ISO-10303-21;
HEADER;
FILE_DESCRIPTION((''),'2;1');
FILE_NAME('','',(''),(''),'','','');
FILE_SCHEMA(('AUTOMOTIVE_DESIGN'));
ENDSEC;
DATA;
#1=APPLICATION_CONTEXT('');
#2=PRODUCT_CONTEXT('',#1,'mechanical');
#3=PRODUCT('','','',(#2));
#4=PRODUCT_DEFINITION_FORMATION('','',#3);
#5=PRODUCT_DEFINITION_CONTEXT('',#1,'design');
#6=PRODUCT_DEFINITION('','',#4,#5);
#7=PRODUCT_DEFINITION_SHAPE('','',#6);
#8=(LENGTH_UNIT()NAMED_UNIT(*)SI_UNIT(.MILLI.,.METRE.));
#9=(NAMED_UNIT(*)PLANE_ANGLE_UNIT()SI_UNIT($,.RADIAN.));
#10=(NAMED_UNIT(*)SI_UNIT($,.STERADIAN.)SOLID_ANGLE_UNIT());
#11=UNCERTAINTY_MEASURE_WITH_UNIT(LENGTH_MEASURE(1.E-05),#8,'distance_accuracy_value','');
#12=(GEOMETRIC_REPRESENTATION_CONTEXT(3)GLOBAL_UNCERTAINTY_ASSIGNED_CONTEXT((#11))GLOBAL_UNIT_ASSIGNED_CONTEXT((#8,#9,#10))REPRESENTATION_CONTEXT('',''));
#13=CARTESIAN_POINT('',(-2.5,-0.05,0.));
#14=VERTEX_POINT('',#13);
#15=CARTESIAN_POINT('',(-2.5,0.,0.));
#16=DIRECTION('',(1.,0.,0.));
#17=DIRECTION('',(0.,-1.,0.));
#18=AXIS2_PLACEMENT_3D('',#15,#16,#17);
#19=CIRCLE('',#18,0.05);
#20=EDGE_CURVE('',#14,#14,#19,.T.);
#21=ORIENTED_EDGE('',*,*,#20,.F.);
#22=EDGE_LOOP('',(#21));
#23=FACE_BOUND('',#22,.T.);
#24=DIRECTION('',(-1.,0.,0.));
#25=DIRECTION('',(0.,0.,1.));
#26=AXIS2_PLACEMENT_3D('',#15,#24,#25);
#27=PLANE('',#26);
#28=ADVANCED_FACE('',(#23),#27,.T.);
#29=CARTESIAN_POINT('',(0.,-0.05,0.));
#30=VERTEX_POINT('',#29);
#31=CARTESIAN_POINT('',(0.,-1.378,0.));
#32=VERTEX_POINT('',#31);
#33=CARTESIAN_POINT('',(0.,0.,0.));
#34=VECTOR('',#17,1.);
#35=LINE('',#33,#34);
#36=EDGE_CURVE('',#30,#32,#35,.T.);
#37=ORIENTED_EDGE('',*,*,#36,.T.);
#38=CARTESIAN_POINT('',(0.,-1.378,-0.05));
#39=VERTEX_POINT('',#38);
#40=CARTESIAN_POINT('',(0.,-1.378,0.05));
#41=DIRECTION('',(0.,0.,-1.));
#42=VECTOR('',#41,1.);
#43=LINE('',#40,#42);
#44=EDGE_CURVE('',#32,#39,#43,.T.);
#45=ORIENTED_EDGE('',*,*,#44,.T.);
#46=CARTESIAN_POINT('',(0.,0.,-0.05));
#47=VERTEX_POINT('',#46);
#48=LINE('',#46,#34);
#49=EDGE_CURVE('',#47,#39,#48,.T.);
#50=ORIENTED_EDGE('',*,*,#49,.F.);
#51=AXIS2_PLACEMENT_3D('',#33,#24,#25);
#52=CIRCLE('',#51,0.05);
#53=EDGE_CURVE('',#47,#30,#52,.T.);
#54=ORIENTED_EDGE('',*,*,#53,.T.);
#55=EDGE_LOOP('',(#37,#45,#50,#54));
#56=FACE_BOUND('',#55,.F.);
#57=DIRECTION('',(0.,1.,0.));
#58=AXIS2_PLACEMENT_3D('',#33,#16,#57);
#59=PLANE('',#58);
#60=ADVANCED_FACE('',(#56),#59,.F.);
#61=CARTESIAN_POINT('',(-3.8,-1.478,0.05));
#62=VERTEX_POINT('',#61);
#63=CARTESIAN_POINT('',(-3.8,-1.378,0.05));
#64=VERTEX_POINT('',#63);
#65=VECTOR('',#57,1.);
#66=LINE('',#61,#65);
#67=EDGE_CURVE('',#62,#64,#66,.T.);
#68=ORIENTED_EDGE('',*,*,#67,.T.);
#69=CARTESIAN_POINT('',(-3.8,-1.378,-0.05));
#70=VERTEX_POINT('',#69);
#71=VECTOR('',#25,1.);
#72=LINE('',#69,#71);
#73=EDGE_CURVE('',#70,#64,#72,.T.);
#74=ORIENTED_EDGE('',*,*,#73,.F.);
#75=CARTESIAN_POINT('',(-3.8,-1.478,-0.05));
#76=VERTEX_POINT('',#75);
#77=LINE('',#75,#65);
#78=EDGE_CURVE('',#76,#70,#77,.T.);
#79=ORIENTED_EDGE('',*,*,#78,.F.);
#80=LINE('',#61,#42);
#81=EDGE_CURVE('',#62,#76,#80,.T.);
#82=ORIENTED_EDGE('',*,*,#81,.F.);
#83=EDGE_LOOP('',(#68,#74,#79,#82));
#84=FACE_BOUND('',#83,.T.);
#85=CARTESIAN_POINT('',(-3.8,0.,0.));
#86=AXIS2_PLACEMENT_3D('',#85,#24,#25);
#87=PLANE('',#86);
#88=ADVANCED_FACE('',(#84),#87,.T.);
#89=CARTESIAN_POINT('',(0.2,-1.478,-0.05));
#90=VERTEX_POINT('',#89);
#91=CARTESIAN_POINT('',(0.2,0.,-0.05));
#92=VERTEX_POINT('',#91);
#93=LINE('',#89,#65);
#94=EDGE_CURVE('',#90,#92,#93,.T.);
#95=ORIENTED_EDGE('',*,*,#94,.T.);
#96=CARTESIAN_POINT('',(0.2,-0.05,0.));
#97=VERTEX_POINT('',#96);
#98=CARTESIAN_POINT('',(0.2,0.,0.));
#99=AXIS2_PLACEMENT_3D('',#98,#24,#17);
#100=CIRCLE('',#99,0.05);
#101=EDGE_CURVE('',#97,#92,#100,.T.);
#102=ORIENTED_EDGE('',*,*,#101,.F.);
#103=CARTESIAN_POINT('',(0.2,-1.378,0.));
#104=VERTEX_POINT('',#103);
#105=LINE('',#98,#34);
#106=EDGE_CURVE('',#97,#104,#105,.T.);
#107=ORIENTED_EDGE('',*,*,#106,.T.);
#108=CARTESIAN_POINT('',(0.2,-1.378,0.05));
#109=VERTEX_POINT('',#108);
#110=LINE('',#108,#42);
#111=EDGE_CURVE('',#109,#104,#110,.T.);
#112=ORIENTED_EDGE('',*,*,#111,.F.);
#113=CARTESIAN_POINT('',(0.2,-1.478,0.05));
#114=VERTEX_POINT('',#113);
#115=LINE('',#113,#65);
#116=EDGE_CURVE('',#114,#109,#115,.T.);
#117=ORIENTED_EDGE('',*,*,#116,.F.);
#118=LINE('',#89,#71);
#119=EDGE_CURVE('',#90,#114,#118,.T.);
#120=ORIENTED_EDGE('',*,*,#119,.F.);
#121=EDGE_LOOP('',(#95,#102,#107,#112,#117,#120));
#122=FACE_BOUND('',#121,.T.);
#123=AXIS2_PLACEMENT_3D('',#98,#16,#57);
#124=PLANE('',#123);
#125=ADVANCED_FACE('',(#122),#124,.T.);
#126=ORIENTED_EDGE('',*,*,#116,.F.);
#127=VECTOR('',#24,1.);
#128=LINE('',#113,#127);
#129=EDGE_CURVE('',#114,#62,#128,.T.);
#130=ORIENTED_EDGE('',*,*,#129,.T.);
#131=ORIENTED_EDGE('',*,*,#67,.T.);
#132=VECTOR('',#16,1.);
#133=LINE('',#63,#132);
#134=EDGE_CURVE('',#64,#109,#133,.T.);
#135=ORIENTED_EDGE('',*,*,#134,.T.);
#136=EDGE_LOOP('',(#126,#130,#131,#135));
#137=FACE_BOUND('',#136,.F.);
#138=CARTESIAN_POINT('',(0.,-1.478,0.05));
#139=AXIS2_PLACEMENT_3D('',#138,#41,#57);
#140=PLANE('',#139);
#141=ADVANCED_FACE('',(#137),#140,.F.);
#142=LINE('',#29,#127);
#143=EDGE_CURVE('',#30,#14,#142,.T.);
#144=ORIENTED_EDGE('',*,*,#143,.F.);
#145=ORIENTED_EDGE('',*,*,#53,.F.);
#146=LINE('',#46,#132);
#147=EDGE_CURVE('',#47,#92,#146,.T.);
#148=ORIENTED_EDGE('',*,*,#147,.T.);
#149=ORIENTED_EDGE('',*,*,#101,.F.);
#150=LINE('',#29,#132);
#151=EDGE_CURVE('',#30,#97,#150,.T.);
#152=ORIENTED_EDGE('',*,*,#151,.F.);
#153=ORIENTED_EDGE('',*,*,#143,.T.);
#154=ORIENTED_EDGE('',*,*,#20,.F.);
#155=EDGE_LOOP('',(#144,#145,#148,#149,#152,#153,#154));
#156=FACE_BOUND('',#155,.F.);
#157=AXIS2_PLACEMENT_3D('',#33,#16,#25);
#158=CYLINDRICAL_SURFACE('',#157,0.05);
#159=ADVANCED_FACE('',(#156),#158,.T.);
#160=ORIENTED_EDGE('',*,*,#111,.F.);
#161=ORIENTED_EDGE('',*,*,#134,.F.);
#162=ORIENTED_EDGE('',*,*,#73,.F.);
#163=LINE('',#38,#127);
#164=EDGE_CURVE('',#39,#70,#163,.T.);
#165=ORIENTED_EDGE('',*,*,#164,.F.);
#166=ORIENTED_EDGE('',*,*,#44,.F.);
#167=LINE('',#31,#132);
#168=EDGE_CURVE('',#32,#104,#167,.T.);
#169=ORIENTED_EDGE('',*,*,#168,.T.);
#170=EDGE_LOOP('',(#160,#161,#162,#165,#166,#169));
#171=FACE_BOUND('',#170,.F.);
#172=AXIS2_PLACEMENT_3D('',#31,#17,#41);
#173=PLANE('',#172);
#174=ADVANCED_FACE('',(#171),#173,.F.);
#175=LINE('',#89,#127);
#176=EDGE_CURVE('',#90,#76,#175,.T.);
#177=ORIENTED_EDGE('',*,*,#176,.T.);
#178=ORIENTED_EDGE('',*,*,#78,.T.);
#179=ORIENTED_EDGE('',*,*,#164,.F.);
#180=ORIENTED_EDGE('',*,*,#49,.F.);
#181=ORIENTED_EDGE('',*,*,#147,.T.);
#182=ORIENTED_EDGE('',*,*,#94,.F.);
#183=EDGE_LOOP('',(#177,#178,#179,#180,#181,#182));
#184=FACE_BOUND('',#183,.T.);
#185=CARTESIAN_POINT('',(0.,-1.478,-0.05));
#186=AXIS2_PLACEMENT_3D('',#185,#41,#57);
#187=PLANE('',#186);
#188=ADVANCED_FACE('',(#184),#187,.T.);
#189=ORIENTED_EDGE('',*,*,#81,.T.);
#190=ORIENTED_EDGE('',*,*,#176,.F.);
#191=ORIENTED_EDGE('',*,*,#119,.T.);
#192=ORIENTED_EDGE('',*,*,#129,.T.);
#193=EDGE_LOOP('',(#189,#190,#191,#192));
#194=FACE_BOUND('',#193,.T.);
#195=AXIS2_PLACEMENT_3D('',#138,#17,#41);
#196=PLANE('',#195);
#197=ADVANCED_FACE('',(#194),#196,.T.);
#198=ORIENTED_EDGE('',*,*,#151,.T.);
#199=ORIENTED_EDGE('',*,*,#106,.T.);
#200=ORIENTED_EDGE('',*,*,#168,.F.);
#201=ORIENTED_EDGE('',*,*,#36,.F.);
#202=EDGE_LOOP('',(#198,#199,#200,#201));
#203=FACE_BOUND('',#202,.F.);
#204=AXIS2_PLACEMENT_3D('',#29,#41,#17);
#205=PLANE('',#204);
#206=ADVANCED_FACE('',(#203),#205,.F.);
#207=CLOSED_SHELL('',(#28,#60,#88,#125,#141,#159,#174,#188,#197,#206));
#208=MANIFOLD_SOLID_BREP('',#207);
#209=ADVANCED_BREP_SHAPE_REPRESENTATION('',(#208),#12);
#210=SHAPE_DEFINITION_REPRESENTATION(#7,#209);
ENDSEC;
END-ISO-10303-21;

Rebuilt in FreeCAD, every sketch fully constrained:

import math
import FreeCAD as App
import Part
import Sketcher

V = App.Vector
Q = App.Units.Quantity


def add_polygon(sketch, points):
    """Adds a closed chain of lines whose ends are joined by coincident constraints."""
    first, n = sketch.GeometryCount, len(points)
    for a, b in zip(points, points[1:] + points[:1]):
        sketch.addGeometry(Part.LineSegment(App.Vector(*a, 0), App.Vector(*b, 0)), False)
    for i in range(n):
        sketch.addConstraint(Sketcher.Constraint("Coincident", first + i, 2, first + (i + 1) % n, 1))

doc = App.newDocument("Part")
body = doc.addObject("PartDesign::Body", "Body")

# Sketch on YZ plane
sketch1 = body.newObject("Sketcher::SketchObject", "Sketch")
sketch1.AttachmentSupport = (doc.getObject("YZ_Plane"), [""])
sketch1.MapMode = "FlatFace"
sketch1.addGeometry(Part.LineSegment(V(-0.05, 0, 0), V(-1.38, 0, 0)), False)
sketch1.addGeometry(Part.LineSegment(V(-1.38, 0, 0), V(-1.38, 0.05, 0)), False)
sketch1.addGeometry(Part.LineSegment(V(-1.38, 0.05, 0), V(-1.48, 0.05, 0)), False)
sketch1.addGeometry(Part.LineSegment(V(-1.48, 0.05, 0), V(-1.48, -0.05, 0)), False)
sketch1.addGeometry(Part.LineSegment(V(-1.48, -0.05, 0), V(0, -0.05, 0)), False)
sketch1.addGeometry(Part.ArcOfCircle(Part.Circle(V(0, 0, 0), V(0, 0, 1), 0.05), math.radians(-90), math.radians(180)), False)
sketch1.addConstraint(Sketcher.Constraint("Coincident", 0, 2, 1, 1))
sketch1.addConstraint(Sketcher.Constraint("Coincident", 1, 2, 2, 1))
sketch1.addConstraint(Sketcher.Constraint("Coincident", 2, 2, 3, 1))
sketch1.addConstraint(Sketcher.Constraint("Coincident", 3, 2, 4, 1))
sketch1.addConstraint(Sketcher.Constraint("Tangent", 4, 2, 5, 1))
sketch1.addConstraint(Sketcher.Constraint("Coincident", 5, 2, 0, 1))
sketch1.addConstraint(Sketcher.Constraint("Horizontal", 0))
sketch1.addConstraint(Sketcher.Constraint("Vertical", 1))
sketch1.addConstraint(Sketcher.Constraint("Horizontal", 2))
sketch1.addConstraint(Sketcher.Constraint("Vertical", 3))
sketch1.addConstraint(Sketcher.Constraint("Horizontal", 4))
sketch1.addConstraint(Sketcher.Constraint("Coincident", 5, 3, -1, 1))
sketch1.addConstraint(Sketcher.Constraint("PointOnObject", 0, 2, -1))
sketch1.addConstraint(Sketcher.Constraint("Equal", 2, 3))
sketch1.addConstraint(Sketcher.Constraint("Radius", 5, Q("0.05 mm")))
sketch1.addConstraint(Sketcher.Constraint("DistanceX", 2, 2, 2, 1, Q("0.1 mm")))
sketch1.addConstraint(Sketcher.Constraint("DistanceX", 2, 2, 5, 2, Q("1.428 mm")))
pad1 = body.newObject("PartDesign::Pad", "Pad")
pad1.Profile = sketch1
pad1.Length = 0.2

# Sketch on YZ plane
sketch2 = body.newObject("Sketcher::SketchObject", "Sketch001")
sketch2.AttachmentSupport = (doc.getObject("YZ_Plane"), [""])
sketch2.MapMode = "FlatFace"
sketch2.addGeometry(Part.Circle(V(0, 0, 0), V(0, 0, 1), 0.05), False)
sketch2.addConstraint(Sketcher.Constraint("Coincident", 0, 3, -1, 1))
sketch2.addConstraint(Sketcher.Constraint("Diameter", 0, Q("0.1 mm")))
pad2 = body.newObject("PartDesign::Pad", "Pad001")
pad2.Profile = sketch2
pad2.Length = 2.5
pad2.Reversed = True

# Sketch on YZ plane
sketch3 = body.newObject("Sketcher::SketchObject", "Sketch002")
sketch3.AttachmentSupport = (doc.getObject("YZ_Plane"), [""])
sketch3.MapMode = "FlatFace"
add_polygon(sketch3, [(-1.38, -0.05), (-1.48, -0.05), (-1.48, 0.05), (-1.38, 0.05)])  # lines 0-3
sketch3.addConstraint(Sketcher.Constraint("Horizontal", 0))
sketch3.addConstraint(Sketcher.Constraint("Vertical", 1))
sketch3.addConstraint(Sketcher.Constraint("Horizontal", 2))
sketch3.addConstraint(Sketcher.Constraint("Vertical", 3))
sketch3.addConstraint(Sketcher.Constraint("Equal", 2, 1))
sketch3.addConstraint(Sketcher.Constraint("DistanceX", 0, 2, 0, 1, Q("0.1 mm")))
sketch3.addConstraint(Sketcher.Constraint("DistanceY", 0, 2, -1, 1, Q("0.05 mm")))
sketch3.addConstraint(Sketcher.Constraint("DistanceX", 0, 2, -1, 1, Q("1.478 mm")))
pad3 = body.newObject("PartDesign::Pad", "Pad002")
pad3.Profile = sketch3
pad3.Length = 3.8
pad3.Reversed = True

doc.recompute()
